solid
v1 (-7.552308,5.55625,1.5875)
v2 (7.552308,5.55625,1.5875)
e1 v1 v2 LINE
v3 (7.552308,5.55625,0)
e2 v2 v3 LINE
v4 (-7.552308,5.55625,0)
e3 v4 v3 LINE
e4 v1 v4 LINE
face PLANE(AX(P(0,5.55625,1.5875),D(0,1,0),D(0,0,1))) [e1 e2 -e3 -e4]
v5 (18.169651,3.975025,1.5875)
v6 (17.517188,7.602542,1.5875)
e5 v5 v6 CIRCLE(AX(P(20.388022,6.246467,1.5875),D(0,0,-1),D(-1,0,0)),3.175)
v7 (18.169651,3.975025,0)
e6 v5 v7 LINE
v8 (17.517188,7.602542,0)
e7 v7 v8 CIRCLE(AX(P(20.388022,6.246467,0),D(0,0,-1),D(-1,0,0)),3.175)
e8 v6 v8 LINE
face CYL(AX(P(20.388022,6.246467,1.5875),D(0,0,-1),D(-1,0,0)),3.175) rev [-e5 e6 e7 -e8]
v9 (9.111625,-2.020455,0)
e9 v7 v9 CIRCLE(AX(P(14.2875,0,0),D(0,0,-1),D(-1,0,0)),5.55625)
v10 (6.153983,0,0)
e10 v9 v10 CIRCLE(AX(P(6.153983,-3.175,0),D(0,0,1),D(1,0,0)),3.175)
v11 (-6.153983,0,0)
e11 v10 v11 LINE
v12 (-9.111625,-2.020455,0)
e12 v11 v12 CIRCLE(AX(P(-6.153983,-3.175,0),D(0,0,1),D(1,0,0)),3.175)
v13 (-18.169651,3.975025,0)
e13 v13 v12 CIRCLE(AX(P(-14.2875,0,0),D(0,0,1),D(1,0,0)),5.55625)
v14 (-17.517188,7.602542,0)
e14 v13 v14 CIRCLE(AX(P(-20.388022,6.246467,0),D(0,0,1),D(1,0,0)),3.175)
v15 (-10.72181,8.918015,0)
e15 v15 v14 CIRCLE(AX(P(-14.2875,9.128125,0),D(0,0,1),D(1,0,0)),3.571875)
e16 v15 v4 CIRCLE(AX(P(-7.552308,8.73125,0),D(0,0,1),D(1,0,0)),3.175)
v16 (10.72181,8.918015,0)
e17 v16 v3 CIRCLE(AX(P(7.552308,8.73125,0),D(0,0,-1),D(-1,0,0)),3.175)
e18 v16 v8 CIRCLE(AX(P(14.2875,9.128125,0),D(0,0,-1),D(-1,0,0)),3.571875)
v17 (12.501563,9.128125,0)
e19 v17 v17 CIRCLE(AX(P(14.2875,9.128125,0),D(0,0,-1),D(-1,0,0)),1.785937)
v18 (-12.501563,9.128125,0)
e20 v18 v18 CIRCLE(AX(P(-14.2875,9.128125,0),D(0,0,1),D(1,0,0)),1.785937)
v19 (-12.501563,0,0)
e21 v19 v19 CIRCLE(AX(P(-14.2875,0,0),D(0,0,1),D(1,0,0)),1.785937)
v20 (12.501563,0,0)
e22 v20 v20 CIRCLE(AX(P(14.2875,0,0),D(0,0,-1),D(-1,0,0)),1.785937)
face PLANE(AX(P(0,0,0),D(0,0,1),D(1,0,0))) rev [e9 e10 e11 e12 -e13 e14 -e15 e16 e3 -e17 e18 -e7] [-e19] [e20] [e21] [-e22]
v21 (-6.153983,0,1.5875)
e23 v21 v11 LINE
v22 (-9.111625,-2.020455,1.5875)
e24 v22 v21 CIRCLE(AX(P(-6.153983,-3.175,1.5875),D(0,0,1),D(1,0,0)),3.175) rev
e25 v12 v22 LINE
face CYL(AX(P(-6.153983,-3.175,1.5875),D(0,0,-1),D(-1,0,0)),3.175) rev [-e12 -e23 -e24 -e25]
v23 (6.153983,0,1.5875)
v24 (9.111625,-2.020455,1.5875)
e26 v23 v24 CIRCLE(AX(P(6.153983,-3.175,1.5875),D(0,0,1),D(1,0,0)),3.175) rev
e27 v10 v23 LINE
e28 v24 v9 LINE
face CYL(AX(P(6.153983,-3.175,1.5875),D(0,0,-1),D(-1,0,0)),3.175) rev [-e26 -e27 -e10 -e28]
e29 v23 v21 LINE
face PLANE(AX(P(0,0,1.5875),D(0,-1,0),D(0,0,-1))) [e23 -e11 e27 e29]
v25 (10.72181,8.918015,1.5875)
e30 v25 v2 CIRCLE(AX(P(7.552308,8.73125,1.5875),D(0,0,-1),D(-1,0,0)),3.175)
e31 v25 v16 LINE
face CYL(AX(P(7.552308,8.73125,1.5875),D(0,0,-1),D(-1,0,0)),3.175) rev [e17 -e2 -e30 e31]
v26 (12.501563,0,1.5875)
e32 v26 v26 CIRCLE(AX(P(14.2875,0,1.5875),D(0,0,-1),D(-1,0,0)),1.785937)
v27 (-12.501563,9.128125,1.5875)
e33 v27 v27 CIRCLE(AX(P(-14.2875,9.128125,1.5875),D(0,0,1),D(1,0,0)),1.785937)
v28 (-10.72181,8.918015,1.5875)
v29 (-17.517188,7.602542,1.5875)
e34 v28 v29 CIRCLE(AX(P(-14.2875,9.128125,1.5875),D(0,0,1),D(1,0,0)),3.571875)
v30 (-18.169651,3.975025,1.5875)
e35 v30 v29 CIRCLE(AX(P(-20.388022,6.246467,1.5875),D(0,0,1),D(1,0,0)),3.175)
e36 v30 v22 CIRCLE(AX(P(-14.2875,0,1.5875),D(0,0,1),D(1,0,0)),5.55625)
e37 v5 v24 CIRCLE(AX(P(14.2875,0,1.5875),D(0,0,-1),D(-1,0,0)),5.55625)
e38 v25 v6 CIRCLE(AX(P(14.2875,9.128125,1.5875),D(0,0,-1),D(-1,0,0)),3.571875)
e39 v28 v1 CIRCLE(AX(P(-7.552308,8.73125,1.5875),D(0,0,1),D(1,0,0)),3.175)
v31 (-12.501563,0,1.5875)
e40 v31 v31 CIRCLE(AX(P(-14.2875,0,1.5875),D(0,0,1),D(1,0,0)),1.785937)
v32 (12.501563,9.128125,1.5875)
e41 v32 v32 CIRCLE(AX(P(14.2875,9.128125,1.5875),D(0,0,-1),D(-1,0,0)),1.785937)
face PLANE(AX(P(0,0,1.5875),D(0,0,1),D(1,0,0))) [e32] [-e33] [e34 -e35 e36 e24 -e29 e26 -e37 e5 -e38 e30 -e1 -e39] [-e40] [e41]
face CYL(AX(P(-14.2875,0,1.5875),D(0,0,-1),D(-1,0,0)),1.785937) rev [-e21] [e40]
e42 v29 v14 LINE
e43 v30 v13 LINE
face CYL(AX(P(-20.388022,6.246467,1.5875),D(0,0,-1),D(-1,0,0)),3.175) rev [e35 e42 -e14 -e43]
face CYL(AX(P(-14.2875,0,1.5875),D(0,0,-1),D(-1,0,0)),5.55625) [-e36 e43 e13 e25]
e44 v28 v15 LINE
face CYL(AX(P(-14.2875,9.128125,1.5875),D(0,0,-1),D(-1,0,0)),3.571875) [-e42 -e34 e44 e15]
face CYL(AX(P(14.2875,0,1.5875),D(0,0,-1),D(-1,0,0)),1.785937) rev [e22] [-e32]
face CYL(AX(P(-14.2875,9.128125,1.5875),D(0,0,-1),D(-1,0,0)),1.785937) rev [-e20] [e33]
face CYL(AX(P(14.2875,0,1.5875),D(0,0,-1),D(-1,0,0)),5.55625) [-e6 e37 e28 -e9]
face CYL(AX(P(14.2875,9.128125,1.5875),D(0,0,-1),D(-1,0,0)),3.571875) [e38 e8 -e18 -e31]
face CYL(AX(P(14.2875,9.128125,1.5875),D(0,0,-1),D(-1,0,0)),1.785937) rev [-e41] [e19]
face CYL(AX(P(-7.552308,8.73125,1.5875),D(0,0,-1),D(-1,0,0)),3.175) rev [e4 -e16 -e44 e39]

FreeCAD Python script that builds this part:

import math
import FreeCAD as App
import Part
import Sketcher
Q = App.Units.Quantity


def edges_at(feature, points):
    """Names of the edges that pass closest to the given points."""
    edges = feature.Shape.Edges
    near = lambda p: min(range(len(edges)), key=lambda i: edges[i].distToShape(Part.Vertex(*p))[0])
    return sorted({f"Edge{near(p) + 1}" for p in points})

doc = App.newDocument("Part")
body = doc.addObject("PartDesign::Body", "Body")

# Sketch on XY plane
sketch1 = body.newObject("Sketcher::SketchObject", "Sketch")
sketch1.AttachmentSupport = (doc.getObject("XY_Plane"), [""])
sketch1.MapMode = "FlatFace"
sketch1.addGeometry([
    Part.LineSegment(App.Vector(-8.7, 0, 0), App.Vector(0, 0, 0)),  # 0
    Part.LineSegment(App.Vector(0, 0, 0), App.Vector(0, 5.6, 0)),  # 1
    Part.LineSegment(App.Vector(0, 5.6, 0), App.Vector(-7.6, 5.6, 0)),  # 2
    Part.ArcOfCircle(Part.Circle(App.Vector(-7.6, 8.7, 0), App.Vector(0, 0, 1), 3.2), math.radians(177), math.radians(270)),  # 3
    Part.ArcOfCircle(Part.Circle(App.Vector(-14.3, 9.1, 0), App.Vector(0, 0, 1), 3.6), math.radians(-3), math.radians(205)),  # 4
    Part.ArcOfCircle(Part.Circle(App.Vector(-20.4, 6.2, 0), App.Vector(0, 0, 1), 3.2), math.radians(-46), math.radians(25)),  # 5
    Part.ArcOfCircle(Part.Circle(App.Vector(-14.3, 0, 0), App.Vector(0, 0, 1), 5.6), math.radians(134), math.radians(360)),  # 6
    Part.Circle(App.Vector(-14.3, 0, 0), App.Vector(0, 0, 1), 1.8),  # 7
    Part.Circle(App.Vector(-14.3, 9.1, 0), App.Vector(0, 0, 1), 1.8),  # 8
], False)
sketch1.addConstraint([
    Sketcher.Constraint("Coincident", 0, 2, 1, 1),
    Sketcher.Constraint("Coincident", 1, 2, 2, 1),
    Sketcher.Constraint("Tangent", 2, 2, 3, 2),
    Sketcher.Constraint("Tangent", 3, 1, 4, 1),
    Sketcher.Constraint("Tangent", 4, 2, 5, 2),
    Sketcher.Constraint("Tangent", 5, 1, 6, 1),
    Sketcher.Constraint("Coincident", 6, 2, 0, 1),
    Sketcher.Constraint("Horizontal", 0),
    Sketcher.Constraint("Vertical", 1),
    Sketcher.Constraint("Horizontal", 2),
    Sketcher.Constraint("Coincident", 0, 2, -1, 1),
    Sketcher.Constraint("Coincident", 7, 3, 6, 3),
    Sketcher.Constraint("Coincident", 8, 3, 4, 3),
    Sketcher.Constraint("Equal", 3, 5),
    Sketcher.Constraint("Equal", 7, 8),
    Sketcher.Constraint("PointOnObject", 6, 3, -1),
    Sketcher.Constraint("Vertical", 4, 3, 6, 3),
    Sketcher.Constraint("Diameter", 7, Q("0.140625 in")),
    Sketcher.Constraint("Radius", 3, Q("0.125 in")),
    Sketcher.Constraint("Radius", 4, Q("0.140625 in")),
    Sketcher.Constraint("Radius", 6, Q("0.21875 in")),
    Sketcher.Constraint("DistanceX", 0, 1, 0, 2, Q("0.34375 in")),
    Sketcher.Constraint("DistanceY", 1, 1, 1, 2, Q("0.21875 in")),
    Sketcher.Constraint("DistanceY", -1, 1, 4, 3, Q("0.359375 in")),
])
pad1 = body.newObject("PartDesign::Pad", "Pad")
pad1.Profile = sketch1
pad1.Length = Q("0.0625 in")
doc.recompute()

fillet = body.newObject("PartDesign::Fillet", "Fillet")
fillet.Base = (pad1, edges_at(pad1, [(-8.731, 0, 0.794)]))
fillet.Radius = Q("0.125 in")
doc.recompute()

mirrored = body.newObject("PartDesign::Mirrored", "Mirrored")
mirrored.Originals = [pad1]
mirrored.MirrorPlane = (doc.getObject("YZ_Plane"), [""])
body.Tip = mirrored
doc.recompute()

fillet2 = body.newObject("PartDesign::Fillet", "Fillet001")
fillet2.Base = (mirrored, edges_at(mirrored, [(8.731, 0, 0.794)]))
fillet2.Radius = Q("0.125 in")

doc.recompute()
